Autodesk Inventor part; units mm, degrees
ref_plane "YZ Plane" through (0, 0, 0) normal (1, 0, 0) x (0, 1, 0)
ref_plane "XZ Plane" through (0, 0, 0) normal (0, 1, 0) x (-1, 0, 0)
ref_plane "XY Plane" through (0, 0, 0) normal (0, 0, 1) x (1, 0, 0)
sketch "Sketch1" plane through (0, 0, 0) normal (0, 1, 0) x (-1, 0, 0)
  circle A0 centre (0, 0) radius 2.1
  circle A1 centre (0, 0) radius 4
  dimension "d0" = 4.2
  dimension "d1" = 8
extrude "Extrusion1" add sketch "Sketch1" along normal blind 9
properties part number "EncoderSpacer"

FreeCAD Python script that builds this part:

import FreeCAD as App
import Part
import Sketcher

V = App.Vector
Q = App.Units.Quantity

doc = App.newDocument("Part")
params = doc.addObject("Spreadsheet::Sheet", "Params")
for row, (alias, value) in enumerate([
    ("sketch1_diameter", "8 mm"),
    ("sketch1_diameter2", "4.2 mm"),
    ("pad1_length", "9 mm"),
], start=1):
    params.set(f"A{row}", alias)
    params.set(f"B{row}", "=" + value)
    params.setAlias(f"B{row}", alias)

body = doc.addObject("PartDesign::Body", "Body")

# Sketch on XZ plane
sketch1 = doc.addObject("Sketcher::SketchObject", "Sketch")
body.addObject(sketch1)
sketch1.AttachmentSupport = (doc.XZ_Plane, [""])
sketch1.MapMode = "FlatFace"
sketch1.addGeometry([
    Part.Circle(V(0, 0, 0), V(0, 0, 1), 4),
    Part.Circle(V(0, 0, 0), V(0, 0, 1), 2.1),
], False)
sketch1.addConstraint([
    Sketcher.Constraint("Coincident", 0, 3, -1, 1),
    Sketcher.Constraint("Coincident", 1, 3, -1, 1),
    Sketcher.Constraint("Diameter", 0, Q("8 mm")),
    Sketcher.Constraint("Diameter", 1, Q("4.2 mm")),
])
sketch1.setExpression("Constraints[2]", "Params.sketch1_diameter")
sketch1.setExpression("Constraints[3]", "Params.sketch1_diameter2")
pad1 = doc.addObject("PartDesign::Pad", "Pad")
body.addObject(pad1)
pad1.Profile = sketch1
pad1.setExpression("Length", "Params.pad1_length")
pad1.Reversed = True

doc.recompute()
